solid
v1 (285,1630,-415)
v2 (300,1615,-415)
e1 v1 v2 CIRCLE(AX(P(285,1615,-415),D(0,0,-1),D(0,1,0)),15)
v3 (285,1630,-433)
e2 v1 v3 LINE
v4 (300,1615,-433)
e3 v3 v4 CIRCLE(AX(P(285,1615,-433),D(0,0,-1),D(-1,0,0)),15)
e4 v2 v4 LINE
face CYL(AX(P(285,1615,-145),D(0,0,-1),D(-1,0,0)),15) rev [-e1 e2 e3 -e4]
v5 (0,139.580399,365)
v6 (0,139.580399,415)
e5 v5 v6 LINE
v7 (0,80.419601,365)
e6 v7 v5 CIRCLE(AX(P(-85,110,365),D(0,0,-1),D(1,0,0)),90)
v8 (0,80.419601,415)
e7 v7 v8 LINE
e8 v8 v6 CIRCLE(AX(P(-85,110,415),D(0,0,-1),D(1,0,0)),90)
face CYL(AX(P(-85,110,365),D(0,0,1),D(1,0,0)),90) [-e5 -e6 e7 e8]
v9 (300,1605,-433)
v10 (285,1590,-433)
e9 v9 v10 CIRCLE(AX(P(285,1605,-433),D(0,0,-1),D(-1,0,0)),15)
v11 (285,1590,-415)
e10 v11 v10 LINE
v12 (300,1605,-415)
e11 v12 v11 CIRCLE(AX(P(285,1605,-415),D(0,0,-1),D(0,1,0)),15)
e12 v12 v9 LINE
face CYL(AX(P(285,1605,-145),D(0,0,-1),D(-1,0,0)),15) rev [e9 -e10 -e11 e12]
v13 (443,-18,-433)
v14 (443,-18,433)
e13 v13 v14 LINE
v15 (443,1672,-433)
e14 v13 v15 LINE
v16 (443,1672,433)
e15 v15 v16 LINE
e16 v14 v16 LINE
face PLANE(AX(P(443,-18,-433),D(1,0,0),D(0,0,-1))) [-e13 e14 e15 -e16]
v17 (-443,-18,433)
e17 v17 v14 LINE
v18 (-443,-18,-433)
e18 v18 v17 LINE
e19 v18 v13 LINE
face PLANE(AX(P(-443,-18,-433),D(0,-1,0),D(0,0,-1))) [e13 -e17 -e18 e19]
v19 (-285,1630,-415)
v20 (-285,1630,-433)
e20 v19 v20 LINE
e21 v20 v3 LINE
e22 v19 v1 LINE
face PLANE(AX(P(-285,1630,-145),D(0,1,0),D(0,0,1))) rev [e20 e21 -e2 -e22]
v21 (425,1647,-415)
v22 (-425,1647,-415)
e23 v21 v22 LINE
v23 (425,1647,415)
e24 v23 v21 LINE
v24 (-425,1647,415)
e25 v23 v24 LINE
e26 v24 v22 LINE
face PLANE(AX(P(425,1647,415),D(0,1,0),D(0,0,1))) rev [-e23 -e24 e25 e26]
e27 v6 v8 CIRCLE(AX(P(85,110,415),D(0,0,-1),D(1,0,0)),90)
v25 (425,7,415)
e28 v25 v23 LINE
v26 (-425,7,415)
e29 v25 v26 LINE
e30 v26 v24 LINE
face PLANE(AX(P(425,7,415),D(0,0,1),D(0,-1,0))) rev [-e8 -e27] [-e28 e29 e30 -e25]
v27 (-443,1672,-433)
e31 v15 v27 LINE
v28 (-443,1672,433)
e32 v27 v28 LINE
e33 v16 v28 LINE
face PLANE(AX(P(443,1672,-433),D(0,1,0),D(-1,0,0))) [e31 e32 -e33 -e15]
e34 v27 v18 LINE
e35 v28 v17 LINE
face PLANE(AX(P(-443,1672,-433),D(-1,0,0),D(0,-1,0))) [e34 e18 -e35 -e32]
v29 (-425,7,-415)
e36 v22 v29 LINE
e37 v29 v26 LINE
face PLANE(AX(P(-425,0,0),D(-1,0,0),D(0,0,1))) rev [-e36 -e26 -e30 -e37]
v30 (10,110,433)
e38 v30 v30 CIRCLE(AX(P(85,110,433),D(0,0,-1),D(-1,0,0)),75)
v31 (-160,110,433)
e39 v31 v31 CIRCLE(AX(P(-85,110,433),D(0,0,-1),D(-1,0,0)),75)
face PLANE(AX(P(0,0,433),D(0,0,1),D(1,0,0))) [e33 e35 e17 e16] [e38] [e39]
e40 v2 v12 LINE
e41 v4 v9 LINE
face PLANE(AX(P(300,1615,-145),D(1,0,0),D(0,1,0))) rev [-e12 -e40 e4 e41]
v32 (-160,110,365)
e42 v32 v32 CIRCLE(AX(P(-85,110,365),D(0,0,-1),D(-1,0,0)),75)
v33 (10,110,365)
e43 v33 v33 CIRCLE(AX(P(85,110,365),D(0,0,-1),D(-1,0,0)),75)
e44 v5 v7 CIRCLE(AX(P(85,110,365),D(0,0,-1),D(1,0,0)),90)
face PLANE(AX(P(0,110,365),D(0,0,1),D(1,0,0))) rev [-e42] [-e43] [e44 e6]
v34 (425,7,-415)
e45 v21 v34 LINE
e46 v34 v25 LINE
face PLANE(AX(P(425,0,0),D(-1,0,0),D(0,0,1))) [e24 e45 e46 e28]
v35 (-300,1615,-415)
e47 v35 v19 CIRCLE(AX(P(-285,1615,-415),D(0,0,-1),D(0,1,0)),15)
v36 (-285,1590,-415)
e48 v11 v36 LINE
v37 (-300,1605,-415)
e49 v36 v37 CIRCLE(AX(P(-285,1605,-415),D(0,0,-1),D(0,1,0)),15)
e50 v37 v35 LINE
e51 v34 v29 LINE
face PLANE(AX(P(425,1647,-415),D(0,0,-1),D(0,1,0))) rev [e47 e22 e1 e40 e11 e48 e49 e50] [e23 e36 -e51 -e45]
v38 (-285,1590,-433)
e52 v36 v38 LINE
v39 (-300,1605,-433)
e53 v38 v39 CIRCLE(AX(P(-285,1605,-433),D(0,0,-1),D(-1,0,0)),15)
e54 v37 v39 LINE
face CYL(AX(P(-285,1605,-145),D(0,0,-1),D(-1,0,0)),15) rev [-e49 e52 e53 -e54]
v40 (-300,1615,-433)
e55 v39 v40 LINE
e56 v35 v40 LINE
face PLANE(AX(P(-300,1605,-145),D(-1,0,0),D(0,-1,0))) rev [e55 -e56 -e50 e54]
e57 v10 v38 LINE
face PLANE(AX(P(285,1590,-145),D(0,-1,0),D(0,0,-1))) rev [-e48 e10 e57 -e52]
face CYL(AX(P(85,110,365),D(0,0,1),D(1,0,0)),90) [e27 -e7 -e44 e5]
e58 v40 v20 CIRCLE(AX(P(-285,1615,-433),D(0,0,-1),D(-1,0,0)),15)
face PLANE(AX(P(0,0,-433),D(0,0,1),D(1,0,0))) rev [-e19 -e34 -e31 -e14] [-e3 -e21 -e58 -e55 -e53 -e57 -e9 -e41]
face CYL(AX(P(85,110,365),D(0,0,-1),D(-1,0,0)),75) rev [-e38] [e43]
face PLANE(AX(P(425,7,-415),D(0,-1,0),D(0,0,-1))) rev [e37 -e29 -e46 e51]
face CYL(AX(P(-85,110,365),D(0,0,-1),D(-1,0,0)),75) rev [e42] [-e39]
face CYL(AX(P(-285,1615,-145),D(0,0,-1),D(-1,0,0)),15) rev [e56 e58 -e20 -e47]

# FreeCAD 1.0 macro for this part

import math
import FreeCAD as App
import Part
import Sketcher

V = App.Vector

doc = App.newDocument("Part")
body = doc.addObject("PartDesign::Body", "Body")

# Sketch on XY plane
sketch1 = body.newObject("Sketcher::SketchObject", "Sketch")
sketch1.AttachmentSupport = (doc.getObject("XY_Plane"), [""])
sketch1.MapMode = "FlatFace"
sketch1.AttachmentOffset = App.Placement(V(0, 0, 433), App.Rotation())
sketch1.addGeometry(Part.LineSegment(V(-443, 1672, 0), V(-443, -18, 0)), False)
sketch1.addGeometry(Part.LineSegment(V(-443, -18, 0), V(443, -18, 0)), False)
sketch1.addGeometry(Part.LineSegment(V(443, -18, 0), V(443, 1672, 0)), False)
sketch1.addGeometry(Part.LineSegment(V(443, 1672, 0), V(-443, 1672, 0)), False)
sketch1.addConstraint(Sketcher.Constraint("Coincident", 0, 2, 1, 1))
sketch1.addConstraint(Sketcher.Constraint("Coincident", 1, 2, 2, 1))
sketch1.addConstraint(Sketcher.Constraint("Coincident", 2, 2, 3, 1))
sketch1.addConstraint(Sketcher.Constraint("Coincident", 3, 2, 0, 1))
sketch1.addConstraint(Sketcher.Constraint("Vertical", 0))
sketch1.addConstraint(Sketcher.Constraint("Horizontal", 1))
sketch1.addConstraint(Sketcher.Constraint("Vertical", 2))
sketch1.addConstraint(Sketcher.Constraint("Horizontal", 3))
sketch1.addConstraint(Sketcher.Constraint("DistanceX", 1, 1, 1, 2, 886.0))
sketch1.addConstraint(Sketcher.Constraint("DistanceY", 0, 2, 0, 1, 1690.0))
sketch1.addConstraint(Sketcher.Constraint("DistanceX", 0, 2, -1, 1, 443.0))
sketch1.addConstraint(Sketcher.Constraint("DistanceY", 0, 2, -1, 1, 18.0))
pad1 = body.newObject("PartDesign::Pad", "Pad")
pad1.Profile = sketch1
pad1.Length = 866
pad1.Reversed = True

# Sketch on YZ plane
sketch2 = body.newObject("Sketcher::SketchObject", "Sketch001")
sketch2.AttachmentSupport = (doc.getObject("YZ_Plane"), [""])
sketch2.MapMode = "FlatFace"
sketch2.AttachmentOffset = App.Placement(V(0, 0, -425), App.Rotation())
sketch2.addGeometry(Part.LineSegment(V(1647, 415, 0), V(1647, -415, 0)), False)
sketch2.addGeometry(Part.LineSegment(V(1647, -415, 0), V(7, -415, 0)), False)
sketch2.addGeometry(Part.LineSegment(V(7, -415, 0), V(7, 415, 0)), False)
sketch2.addGeometry(Part.LineSegment(V(7, 415, 0), V(1647, 415, 0)), False)
sketch2.addConstraint(Sketcher.Constraint("Coincident", 0, 2, 1, 1))
sketch2.addConstraint(Sketcher.Constraint("Coincident", 1, 2, 2, 1))
sketch2.addConstraint(Sketcher.Constraint("Coincident", 2, 2, 3, 1))
sketch2.addConstraint(Sketcher.Constraint("Coincident", 3, 2, 0, 1))
sketch2.addConstraint(Sketcher.Constraint("Vertical", 0))
sketch2.addConstraint(Sketcher.Constraint("Horizontal", 1))
sketch2.addConstraint(Sketcher.Constraint("Vertical", 2))
sketch2.addConstraint(Sketcher.Constraint("Horizontal", 3))
sketch2.addConstraint(Sketcher.Constraint("DistanceX", 1, 2, 1, 1, 1640.0))
sketch2.addConstraint(Sketcher.Constraint("DistanceY", 0, 2, 0, 1, 830.0))
sketch2.addConstraint(Sketcher.Constraint("DistanceX", -1, 1, 0, 2, 1647.0))
sketch2.addConstraint(Sketcher.Constraint("DistanceY", 0, 2, -1, 1, 415.0))
pocket1 = body.newObject("PartDesign::Pocket", "Pocket")
pocket1.Profile = sketch2
pocket1.Length = 850
pocket1.Reversed = True

# Sketch on XY plane
sketch3 = body.newObject("Sketcher::SketchObject", "Sketch002")
sketch3.AttachmentSupport = (doc.getObject("XY_Plane"), [""])
sketch3.MapMode = "FlatFace"
sketch3.AttachmentOffset = App.Placement(V(0, 0, -433), App.Rotation())
sketch3.addGeometry(Part.LineSegment(V(300, 1615, 0), V(300, 1605, 0)), False)
sketch3.addGeometry(Part.ArcOfCircle(Part.Circle(V(285, 1605, 0), V(0, 0, 1), 15), math.radians(-90), math.radians(0)), False)
sketch3.addGeometry(Part.LineSegment(V(285, 1590, 0), V(-285, 1590, 0)), False)
sketch3.addGeometry(Part.ArcOfCircle(Part.Circle(V(-285, 1605, 0), V(0, 0, 1), 15), math.radians(180), math.radians(270)), False)
sketch3.addGeometry(Part.LineSegment(V(-300, 1605, 0), V(-300, 1615, 0)), False)
sketch3.addGeometry(Part.ArcOfCircle(Part.Circle(V(-285, 1615, 0), V(0, 0, 1), 15), math.radians(90), math.radians(180)), False)
sketch3.addGeometry(Part.LineSegment(V(-285, 1630, 0), V(285, 1630, 0)), False)
sketch3.addGeometry(Part.ArcOfCircle(Part.Circle(V(285, 1615, 0), V(0, 0, 1), 15), math.radians(0), math.radians(90)), False)
sketch3.addConstraint(Sketcher.Constraint("Tangent", 0, 2, 1, 2))
sketch3.addConstraint(Sketcher.Constraint("Tangent", 1, 1, 2, 1))
sketch3.addConstraint(Sketcher.Constraint("Tangent", 2, 2, 3, 2))
sketch3.addConstraint(Sketcher.Constraint("Tangent", 3, 1, 4, 1))
sketch3.addConstraint(Sketcher.Constraint("Tangent", 4, 2, 5, 2))
sketch3.addConstraint(Sketcher.Constraint("Tangent", 5, 1, 6, 1))
sketch3.addConstraint(Sketcher.Constraint("Tangent", 6, 2, 7, 2))
sketch3.addConstraint(Sketcher.Constraint("Tangent", 7, 1, 0, 1))
sketch3.addConstraint(Sketcher.Constraint("Vertical", 0))
sketch3.addConstraint(Sketcher.Constraint("Horizontal", 2))
sketch3.addConstraint(Sketcher.Constraint("Vertical", 4))
sketch3.addConstraint(Sketcher.Constraint("Horizontal", 6))
sketch3.addConstraint(Sketcher.Constraint("Equal", 1, 3))
sketch3.addConstraint(Sketcher.Constraint("Equal", 3, 5))
sketch3.addConstraint(Sketcher.Constraint("Equal", 5, 7))
sketch3.addConstraint(Sketcher.Constraint("Radius", 1, 15.0))
sketch3.addConstraint(Sketcher.Constraint("DistanceX", 2, 2, 2, 1, 570.0))
sketch3.addConstraint(Sketcher.Constraint("DistanceY", 0, 2, 0, 1, 10.0))
sketch3.addConstraint(Sketcher.Constraint("DistanceX", -1, 1, 1, 3, 285.0))
sketch3.addConstraint(Sketcher.Constraint("DistanceY", -1, 1, 1, 3, 1605.0))
pocket2 = body.newObject("PartDesign::Pocket", "Pocket001")
pocket2.Profile = sketch3
pocket2.Length = 288
pocket2.Reversed = True

# Sketch on XY plane
sketch4 = body.newObject("Sketcher::SketchObject", "Sketch003")
sketch4.AttachmentSupport = (doc.getObject("XY_Plane"), [""])
sketch4.MapMode = "FlatFace"
sketch4.AttachmentOffset = App.Placement(V(0, 0, 415), App.Rotation())
sketch4.addGeometry(Part.ArcOfCircle(Part.Circle(V(85, 110, 0), V(0, 0, 1), 90), math.radians(-161), math.radians(161)), False)
sketch4.addGeometry(Part.ArcOfCircle(Part.Circle(V(-85, 110, 0), V(0, 0, 1), 90), math.radians(19), math.radians(341)), False)
sketch4.addConstraint(Sketcher.Constraint("Coincident", 0, 1, 1, 2))
sketch4.addConstraint(Sketcher.Constraint("Coincident", 1, 1, 0, 2))
sketch4.addConstraint(Sketcher.Constraint("Equal", 0, 1))
sketch4.addConstraint(Sketcher.Constraint("Symmetric", 0, 3, 1, 3, -2))
sketch4.addConstraint(Sketcher.Constraint("Radius", 0, 90.0))
sketch4.addConstraint(Sketcher.Constraint("DistanceX", -1, 1, 0, 3, 85.0))
sketch4.addConstraint(Sketcher.Constraint("DistanceY", -1, 1, 0, 3, 110.0))
pad2 = body.newObject("PartDesign::Pad", "Pad001")
pad2.Profile = sketch4
pad2.Length = 50
pad2.Reversed = True

# Sketch on XY plane
sketch5 = body.newObject("Sketcher::SketchObject", "Sketch004")
sketch5.AttachmentSupport = (doc.getObject("XY_Plane"), [""])
sketch5.MapMode = "FlatFace"
sketch5.AttachmentOffset = App.Placement(V(0, 0, 365), App.Rotation())
sketch5.addGeometry(Part.Circle(V(85, 110, 0), V(0, 0, 1), 75), False)
sketch5.addGeometry(Part.Circle(V(-85, 110, 0), V(0, 0, 1), 75), False)
sketch5.addConstraint(Sketcher.Constraint("Equal", 0, 1))
sketch5.addConstraint(Sketcher.Constraint("Symmetric", 0, 3, 1, 3, -2))
sketch5.addConstraint(Sketcher.Constraint("Diameter", 0, 150.0))
sketch5.addConstraint(Sketcher.Constraint("DistanceX", -1, 1, 0, 3, 85.0))
sketch5.addConstraint(Sketcher.Constraint("DistanceY", -1, 1, 0, 3, 110.0))
doc.recompute()
hole = body.newObject("PartDesign::Hole", "Hole")
hole.Profile = sketch5
hole.ThreadType = "None"
hole.Diameter = 150
hole.DepthType = "Dimension"
hole.Depth = 68
hole.DrillPoint = "Flat"
hole.Reversed = True

doc.recompute()
